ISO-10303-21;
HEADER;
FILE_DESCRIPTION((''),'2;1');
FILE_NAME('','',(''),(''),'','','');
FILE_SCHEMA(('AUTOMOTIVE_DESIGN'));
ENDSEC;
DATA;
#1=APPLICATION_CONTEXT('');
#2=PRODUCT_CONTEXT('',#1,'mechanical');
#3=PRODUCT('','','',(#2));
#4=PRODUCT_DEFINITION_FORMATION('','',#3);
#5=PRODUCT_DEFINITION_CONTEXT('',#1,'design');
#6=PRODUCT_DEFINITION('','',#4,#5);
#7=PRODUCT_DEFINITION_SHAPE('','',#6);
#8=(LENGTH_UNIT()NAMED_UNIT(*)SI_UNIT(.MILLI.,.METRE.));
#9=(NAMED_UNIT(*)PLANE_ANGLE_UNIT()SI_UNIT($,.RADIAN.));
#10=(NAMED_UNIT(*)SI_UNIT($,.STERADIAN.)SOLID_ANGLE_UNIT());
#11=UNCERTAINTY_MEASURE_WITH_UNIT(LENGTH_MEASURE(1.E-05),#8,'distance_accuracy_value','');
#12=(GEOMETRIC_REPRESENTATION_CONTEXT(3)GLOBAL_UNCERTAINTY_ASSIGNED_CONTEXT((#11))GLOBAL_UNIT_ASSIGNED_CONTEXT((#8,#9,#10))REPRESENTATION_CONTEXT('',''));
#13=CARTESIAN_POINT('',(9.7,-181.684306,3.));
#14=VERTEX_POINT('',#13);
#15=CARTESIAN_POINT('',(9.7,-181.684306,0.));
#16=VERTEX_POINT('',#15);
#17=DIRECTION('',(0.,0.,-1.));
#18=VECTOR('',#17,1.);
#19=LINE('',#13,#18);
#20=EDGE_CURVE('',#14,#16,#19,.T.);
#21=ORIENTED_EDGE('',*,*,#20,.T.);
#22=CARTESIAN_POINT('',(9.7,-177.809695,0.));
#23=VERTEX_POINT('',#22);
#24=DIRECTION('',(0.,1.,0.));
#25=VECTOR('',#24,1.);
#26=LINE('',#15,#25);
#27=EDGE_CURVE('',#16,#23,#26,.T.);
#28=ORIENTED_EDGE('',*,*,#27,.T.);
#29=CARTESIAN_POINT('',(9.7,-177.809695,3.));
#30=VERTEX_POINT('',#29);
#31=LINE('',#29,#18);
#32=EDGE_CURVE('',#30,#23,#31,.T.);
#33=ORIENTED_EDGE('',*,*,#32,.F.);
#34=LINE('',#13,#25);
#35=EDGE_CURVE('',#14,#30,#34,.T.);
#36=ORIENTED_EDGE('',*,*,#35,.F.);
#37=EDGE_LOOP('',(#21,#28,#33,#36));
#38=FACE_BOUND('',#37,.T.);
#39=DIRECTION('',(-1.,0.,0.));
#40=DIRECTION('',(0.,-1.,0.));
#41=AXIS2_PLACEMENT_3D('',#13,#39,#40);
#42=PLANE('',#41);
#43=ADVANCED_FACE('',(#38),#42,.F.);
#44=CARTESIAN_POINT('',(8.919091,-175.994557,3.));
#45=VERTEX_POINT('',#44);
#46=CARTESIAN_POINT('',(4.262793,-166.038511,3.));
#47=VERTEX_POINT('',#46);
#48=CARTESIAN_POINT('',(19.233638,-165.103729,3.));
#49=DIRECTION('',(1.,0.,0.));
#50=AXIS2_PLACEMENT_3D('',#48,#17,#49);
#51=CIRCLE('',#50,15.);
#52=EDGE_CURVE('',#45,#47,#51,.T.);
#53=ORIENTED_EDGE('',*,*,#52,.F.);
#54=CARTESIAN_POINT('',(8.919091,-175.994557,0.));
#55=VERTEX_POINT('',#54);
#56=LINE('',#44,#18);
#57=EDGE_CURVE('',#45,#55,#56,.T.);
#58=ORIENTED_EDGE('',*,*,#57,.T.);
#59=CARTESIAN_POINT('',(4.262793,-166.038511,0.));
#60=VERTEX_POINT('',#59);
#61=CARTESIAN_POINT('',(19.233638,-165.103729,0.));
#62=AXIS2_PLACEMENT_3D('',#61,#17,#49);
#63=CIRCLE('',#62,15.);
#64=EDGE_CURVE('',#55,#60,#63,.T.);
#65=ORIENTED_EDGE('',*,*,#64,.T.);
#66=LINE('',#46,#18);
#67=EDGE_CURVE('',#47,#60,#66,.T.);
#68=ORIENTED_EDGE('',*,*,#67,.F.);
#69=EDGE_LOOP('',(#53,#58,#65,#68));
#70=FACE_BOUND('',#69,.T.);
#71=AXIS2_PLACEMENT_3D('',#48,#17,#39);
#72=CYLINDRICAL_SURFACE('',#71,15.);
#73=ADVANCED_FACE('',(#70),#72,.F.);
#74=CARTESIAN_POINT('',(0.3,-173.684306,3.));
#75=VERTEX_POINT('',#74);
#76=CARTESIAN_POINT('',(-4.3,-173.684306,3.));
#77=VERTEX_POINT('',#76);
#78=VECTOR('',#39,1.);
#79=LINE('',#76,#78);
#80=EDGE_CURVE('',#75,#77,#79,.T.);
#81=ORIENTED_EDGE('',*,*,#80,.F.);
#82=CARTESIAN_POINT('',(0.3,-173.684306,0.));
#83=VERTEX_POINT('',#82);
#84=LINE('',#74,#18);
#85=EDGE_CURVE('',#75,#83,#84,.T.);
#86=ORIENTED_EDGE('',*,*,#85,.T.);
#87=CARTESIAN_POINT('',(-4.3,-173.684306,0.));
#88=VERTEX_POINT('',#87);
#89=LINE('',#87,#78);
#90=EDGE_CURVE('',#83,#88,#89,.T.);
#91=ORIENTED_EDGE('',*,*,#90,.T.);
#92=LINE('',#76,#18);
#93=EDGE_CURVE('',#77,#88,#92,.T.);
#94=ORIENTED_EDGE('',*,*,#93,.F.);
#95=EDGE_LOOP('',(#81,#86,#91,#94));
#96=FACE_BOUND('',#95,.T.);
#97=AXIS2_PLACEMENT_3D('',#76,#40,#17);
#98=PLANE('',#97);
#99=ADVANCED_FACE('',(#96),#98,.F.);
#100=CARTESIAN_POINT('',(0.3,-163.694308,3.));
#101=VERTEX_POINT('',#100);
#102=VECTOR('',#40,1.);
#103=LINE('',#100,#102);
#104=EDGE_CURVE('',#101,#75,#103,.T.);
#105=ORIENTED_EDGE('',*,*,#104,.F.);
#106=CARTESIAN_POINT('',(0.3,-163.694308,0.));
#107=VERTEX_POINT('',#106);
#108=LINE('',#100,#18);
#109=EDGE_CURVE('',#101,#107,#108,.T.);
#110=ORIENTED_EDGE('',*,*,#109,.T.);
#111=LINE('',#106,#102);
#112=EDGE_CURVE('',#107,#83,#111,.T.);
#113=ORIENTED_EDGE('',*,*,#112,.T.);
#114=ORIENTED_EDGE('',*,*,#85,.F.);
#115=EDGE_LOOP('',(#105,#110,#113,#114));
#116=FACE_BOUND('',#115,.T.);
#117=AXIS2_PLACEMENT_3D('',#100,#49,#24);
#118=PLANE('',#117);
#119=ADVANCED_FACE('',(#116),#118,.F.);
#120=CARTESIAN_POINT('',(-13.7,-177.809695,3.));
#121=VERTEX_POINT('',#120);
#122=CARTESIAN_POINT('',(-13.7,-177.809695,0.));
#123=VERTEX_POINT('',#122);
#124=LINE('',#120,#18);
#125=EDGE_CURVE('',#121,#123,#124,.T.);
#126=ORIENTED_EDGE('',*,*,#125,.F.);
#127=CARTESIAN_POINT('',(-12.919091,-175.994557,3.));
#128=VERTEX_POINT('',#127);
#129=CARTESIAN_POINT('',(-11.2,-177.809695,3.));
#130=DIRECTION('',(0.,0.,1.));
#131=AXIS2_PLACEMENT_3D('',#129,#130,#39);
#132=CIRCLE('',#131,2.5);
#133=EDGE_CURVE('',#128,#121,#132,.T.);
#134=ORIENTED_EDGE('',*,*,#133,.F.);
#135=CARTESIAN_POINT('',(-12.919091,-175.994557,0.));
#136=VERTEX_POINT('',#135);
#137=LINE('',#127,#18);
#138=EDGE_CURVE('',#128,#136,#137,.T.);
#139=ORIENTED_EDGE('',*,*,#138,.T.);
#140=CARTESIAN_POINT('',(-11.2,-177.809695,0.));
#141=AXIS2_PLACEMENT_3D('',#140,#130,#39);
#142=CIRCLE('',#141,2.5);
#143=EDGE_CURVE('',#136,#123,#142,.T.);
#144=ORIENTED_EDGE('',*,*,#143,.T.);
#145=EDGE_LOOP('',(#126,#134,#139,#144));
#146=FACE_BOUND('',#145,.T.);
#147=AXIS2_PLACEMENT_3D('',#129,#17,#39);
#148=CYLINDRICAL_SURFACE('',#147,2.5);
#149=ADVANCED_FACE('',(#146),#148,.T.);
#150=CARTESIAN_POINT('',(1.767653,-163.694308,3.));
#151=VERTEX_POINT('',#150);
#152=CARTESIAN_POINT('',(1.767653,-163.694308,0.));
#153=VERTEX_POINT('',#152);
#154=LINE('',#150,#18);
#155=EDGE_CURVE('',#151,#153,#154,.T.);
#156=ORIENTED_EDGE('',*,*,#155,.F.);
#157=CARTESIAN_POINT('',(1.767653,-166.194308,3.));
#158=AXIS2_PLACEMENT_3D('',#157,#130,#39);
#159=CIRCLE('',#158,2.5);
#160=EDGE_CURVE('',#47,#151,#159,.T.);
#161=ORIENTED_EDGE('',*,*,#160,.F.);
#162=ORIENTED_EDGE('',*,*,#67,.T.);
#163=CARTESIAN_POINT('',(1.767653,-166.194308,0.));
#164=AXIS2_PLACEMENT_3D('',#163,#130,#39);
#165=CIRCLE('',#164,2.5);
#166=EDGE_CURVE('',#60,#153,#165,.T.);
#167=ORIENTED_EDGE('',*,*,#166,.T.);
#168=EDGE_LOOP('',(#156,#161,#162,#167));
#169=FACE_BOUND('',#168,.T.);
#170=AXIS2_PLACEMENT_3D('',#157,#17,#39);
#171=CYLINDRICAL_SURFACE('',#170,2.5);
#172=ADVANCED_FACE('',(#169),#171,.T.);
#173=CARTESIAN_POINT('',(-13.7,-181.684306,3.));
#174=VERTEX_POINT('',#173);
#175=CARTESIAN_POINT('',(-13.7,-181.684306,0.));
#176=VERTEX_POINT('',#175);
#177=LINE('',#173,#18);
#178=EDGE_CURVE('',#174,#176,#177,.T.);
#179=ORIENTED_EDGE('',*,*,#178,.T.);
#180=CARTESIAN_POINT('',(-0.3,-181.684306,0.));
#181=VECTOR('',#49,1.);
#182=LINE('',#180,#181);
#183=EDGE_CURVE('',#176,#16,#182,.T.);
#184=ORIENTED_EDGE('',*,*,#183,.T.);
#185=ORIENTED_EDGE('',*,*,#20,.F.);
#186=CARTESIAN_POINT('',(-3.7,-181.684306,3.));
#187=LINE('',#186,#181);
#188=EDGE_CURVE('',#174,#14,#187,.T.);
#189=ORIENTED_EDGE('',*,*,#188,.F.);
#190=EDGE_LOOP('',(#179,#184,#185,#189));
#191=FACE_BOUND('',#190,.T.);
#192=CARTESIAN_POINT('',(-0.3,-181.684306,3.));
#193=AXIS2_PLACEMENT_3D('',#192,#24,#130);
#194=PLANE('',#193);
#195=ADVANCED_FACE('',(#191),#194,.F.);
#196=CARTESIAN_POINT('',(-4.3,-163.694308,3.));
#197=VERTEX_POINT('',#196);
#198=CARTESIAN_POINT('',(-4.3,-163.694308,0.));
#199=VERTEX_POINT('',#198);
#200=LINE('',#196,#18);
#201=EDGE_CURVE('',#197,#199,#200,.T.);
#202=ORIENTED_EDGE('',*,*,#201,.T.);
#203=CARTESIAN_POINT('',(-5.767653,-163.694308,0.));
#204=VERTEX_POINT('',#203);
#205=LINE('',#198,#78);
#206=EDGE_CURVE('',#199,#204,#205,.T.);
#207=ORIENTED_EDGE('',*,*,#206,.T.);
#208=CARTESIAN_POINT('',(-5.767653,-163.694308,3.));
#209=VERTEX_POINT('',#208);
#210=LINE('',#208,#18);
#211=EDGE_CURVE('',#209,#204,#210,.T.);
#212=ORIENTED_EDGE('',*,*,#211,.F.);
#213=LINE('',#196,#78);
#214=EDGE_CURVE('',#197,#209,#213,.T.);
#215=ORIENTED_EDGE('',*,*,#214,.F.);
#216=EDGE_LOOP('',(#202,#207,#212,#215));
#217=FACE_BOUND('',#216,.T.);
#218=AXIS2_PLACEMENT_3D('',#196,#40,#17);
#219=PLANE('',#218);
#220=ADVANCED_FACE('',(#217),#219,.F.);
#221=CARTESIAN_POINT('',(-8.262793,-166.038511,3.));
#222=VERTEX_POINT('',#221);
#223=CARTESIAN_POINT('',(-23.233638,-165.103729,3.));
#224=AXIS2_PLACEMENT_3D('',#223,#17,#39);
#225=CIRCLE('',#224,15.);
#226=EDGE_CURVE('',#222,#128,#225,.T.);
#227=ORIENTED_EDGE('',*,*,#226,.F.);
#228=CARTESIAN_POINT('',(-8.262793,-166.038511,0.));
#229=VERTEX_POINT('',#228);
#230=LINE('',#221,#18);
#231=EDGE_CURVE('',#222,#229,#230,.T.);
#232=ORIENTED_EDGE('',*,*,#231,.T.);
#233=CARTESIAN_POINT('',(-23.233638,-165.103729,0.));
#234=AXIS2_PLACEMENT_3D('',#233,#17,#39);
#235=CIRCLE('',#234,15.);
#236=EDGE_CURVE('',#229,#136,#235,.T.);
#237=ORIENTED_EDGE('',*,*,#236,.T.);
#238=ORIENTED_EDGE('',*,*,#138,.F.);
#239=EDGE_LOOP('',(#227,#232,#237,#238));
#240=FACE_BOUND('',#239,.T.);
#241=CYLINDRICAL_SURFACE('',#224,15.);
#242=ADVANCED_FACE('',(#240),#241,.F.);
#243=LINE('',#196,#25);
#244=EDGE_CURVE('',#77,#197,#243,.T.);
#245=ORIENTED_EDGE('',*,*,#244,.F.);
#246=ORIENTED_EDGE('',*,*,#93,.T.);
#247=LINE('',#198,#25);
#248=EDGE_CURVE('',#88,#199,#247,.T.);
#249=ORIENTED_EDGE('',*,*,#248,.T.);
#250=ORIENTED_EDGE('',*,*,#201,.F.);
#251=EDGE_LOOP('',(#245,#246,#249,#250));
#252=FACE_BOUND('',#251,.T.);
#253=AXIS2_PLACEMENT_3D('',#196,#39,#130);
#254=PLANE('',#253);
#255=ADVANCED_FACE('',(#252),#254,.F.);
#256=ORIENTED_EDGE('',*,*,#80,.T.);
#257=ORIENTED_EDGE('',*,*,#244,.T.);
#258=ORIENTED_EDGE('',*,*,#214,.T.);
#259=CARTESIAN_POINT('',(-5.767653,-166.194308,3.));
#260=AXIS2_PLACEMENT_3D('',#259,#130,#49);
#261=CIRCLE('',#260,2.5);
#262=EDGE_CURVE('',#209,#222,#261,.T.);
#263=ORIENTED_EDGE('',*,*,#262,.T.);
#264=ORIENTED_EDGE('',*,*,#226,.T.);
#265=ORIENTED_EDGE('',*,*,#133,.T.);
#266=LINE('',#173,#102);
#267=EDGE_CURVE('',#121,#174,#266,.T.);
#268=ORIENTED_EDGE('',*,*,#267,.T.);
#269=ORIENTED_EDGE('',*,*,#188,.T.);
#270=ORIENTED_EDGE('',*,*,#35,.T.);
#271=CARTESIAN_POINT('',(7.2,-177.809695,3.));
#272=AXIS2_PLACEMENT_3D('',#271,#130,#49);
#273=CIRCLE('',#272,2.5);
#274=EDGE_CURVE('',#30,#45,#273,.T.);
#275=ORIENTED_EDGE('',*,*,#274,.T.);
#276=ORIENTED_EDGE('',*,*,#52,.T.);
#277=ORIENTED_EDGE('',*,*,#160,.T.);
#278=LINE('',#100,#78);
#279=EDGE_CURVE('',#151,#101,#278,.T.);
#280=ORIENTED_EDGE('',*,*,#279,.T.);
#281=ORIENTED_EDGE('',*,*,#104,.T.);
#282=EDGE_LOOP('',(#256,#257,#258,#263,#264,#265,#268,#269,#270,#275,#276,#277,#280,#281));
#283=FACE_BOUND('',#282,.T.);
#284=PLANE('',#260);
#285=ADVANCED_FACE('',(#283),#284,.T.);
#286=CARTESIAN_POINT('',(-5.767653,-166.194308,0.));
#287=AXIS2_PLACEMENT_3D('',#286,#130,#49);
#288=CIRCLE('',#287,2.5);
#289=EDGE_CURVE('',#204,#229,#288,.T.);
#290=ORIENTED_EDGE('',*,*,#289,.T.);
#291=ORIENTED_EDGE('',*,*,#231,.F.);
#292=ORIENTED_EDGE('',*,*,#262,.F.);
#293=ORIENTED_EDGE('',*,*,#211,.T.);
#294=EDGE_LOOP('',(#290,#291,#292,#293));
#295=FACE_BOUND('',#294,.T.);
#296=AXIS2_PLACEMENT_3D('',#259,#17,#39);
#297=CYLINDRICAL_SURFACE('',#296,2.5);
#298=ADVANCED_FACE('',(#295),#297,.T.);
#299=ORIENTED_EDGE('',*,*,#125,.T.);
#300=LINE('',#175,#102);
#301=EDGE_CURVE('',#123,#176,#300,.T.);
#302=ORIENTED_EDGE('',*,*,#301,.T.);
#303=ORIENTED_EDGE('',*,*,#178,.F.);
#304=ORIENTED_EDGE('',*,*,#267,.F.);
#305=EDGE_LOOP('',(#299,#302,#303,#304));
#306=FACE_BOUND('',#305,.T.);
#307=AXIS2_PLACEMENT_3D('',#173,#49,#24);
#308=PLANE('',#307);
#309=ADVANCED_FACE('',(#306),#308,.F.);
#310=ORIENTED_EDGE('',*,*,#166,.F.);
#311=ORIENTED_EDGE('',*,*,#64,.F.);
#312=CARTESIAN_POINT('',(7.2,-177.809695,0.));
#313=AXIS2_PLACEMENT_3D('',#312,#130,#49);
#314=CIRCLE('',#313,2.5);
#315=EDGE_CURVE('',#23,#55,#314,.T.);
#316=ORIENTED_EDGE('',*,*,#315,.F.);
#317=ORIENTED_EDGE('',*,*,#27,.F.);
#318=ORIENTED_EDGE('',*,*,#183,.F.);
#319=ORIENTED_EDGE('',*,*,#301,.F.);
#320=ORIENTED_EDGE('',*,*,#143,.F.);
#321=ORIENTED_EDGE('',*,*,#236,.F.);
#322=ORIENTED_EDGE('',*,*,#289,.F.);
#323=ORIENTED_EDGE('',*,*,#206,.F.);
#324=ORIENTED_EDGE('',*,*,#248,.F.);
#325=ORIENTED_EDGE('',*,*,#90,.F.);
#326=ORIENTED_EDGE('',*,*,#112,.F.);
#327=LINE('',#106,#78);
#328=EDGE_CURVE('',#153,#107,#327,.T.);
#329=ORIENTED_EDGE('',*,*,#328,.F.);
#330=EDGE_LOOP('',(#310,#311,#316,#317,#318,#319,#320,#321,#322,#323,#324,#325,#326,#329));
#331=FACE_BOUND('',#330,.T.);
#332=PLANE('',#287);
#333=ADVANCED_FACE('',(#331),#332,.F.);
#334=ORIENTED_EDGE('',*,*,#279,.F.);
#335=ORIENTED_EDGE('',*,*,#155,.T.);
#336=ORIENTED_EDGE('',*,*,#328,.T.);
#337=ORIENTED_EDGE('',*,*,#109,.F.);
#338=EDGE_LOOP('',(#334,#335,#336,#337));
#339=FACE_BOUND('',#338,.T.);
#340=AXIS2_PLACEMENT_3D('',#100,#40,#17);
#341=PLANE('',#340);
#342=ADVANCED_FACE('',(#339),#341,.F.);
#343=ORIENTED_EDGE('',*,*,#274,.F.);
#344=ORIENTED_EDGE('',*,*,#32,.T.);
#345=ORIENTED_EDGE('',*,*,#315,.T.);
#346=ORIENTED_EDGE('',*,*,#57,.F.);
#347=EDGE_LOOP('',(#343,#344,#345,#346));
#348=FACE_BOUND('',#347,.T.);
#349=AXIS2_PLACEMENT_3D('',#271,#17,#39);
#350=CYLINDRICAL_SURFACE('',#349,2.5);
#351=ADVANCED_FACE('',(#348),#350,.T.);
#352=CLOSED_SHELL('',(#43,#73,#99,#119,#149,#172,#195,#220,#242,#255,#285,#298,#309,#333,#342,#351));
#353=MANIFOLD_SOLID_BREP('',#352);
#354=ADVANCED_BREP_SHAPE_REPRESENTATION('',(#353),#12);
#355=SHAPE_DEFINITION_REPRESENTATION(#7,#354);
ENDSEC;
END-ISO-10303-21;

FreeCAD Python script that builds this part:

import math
import FreeCAD as App
import Part
import Sketcher

V = App.Vector

doc = App.newDocument("Part")
body = doc.addObject("PartDesign::Body", "Body")

# Sketch on XY plane
sketch1 = body.newObject("Sketcher::SketchObject", "Sketch")
sketch1.AttachmentSupport = (doc.getObject("XY_Plane"), [""])
sketch1.MapMode = "FlatFace"
sketch1.addGeometry([
    Part.LineSegment(V(-4.3, -173.7, 0), V(-4.3, -163.7, 0)),  # 0
    Part.LineSegment(V(-4.3, -163.7, 0), V(-5.8, -163.7, 0)),  # 1
    Part.ArcOfCircle(Part.Circle(V(-5.8, -166.2, 0), V(0, 0, 1), 2.5), math.radians(90), math.radians(176)),  # 2
    Part.ArcOfCircle(Part.Circle(V(-23.2, -165.1, 0), V(0, 0, 1), 15), math.radians(-47), math.radians(-4)),  # 3
    Part.ArcOfCircle(Part.Circle(V(-11.2, -177.8, 0), V(0, 0, 1), 2.5), math.radians(133), math.radians(180)),  # 4
    Part.LineSegment(V(-13.7, -177.8, 0), V(-13.7, -181.7, 0)),  # 5
    Part.LineSegment(V(-13.7, -181.7, 0), V(9.7, -181.7, 0)),  # 6
    Part.LineSegment(V(9.7, -181.7, 0), V(9.7, -177.8, 0)),  # 7
    Part.ArcOfCircle(Part.Circle(V(7.2, -177.8, 0), V(0, 0, 1), 2.5), math.radians(0), math.radians(47)),  # 8
    Part.ArcOfCircle(Part.Circle(V(19.2, -165.1, 0), V(0, 0, 1), 15), math.radians(-176), math.radians(-133)),  # 9
    Part.ArcOfCircle(Part.Circle(V(1.8, -166.2, 0), V(0, 0, 1), 2.5), math.radians(4), math.radians(90)),  # 10
    Part.LineSegment(V(1.8, -163.7, 0), V(0.3, -163.7, 0)),  # 11
    Part.LineSegment(V(0.3, -163.7, 0), V(0.3, -173.7, 0)),  # 12
    Part.LineSegment(V(0.3, -173.7, 0), V(-4.3, -173.7, 0)),  # 13
], False)
sketch1.addConstraint([
    Sketcher.Constraint("Coincident", 0, 2, 1, 1),
    Sketcher.Constraint("Tangent", 1, 2, 2, 1),
    Sketcher.Constraint("Tangent", 2, 2, 3, 2),
    Sketcher.Constraint("Tangent", 3, 1, 4, 1),
    Sketcher.Constraint("Tangent", 4, 2, 5, 1),
    Sketcher.Constraint("Coincident", 5, 2, 6, 1),
    Sketcher.Constraint("Coincident", 6, 2, 7, 1),
    Sketcher.Constraint("Tangent", 7, 2, 8, 1),
    Sketcher.Constraint("Tangent", 8, 2, 9, 2),
    Sketcher.Constraint("Tangent", 9, 1, 10, 1),
    Sketcher.Constraint("Tangent", 10, 2, 11, 1),
    Sketcher.Constraint("Coincident", 11, 2, 12, 1),
    Sketcher.Constraint("Coincident", 12, 2, 13, 1),
    Sketcher.Constraint("Coincident", 13, 2, 0, 1),
    Sketcher.Constraint("Vertical", 0),
    Sketcher.Constraint("Horizontal", 1),
    Sketcher.Constraint("Vertical", 5),
    Sketcher.Constraint("Horizontal", 6),
    Sketcher.Constraint("Vertical", 7),
    Sketcher.Constraint("Horizontal", 11),
    Sketcher.Constraint("Vertical", 12),
    Sketcher.Constraint("Horizontal", 13),
    Sketcher.Constraint("Equal", 2, 4),
    Sketcher.Constraint("Equal", 4, 8),
    Sketcher.Constraint("Equal", 3, 9),
    Sketcher.Constraint("Equal", 8, 10),
    Sketcher.Constraint("Horizontal", 4, 3, 8, 3),
    Sketcher.Constraint("Horizontal", 3, 3, 9, 3),
    Sketcher.Constraint("Horizontal", 2, 3, 10, 3),
    Sketcher.Constraint("Equal", 1, 11),
    Sketcher.Constraint("Radius", 3, 15.0),
    Sketcher.Constraint("Radius", 2, 2.5),
    Sketcher.Constraint("DistanceX", 6, 1, 6, 2, 23.4),
    Sketcher.Constraint("DistanceX", 13, 2, 13, 1, 4.6),
    Sketcher.Constraint("DistanceX", 4, 3, -1, 1, 11.2),
    Sketcher.Constraint("DistanceY", 5, 2, 5, 1, 3.874611),
    Sketcher.Constraint("DistanceX", 1, 2, 1, 1, 1.467653),
    Sketcher.Constraint("DistanceY", 0, 1, 0, 2, 9.989997),
    Sketcher.Constraint("DistanceY", 2, 3, -1, 1, 166.194308),
    Sketcher.Constraint("DistanceY", 3, 3, -1, 1, 165.103729),
])
pad1 = body.newObject("PartDesign::Pad", "Pad")
pad1.Profile = sketch1
pad1.Length = 3

doc.recompute()
